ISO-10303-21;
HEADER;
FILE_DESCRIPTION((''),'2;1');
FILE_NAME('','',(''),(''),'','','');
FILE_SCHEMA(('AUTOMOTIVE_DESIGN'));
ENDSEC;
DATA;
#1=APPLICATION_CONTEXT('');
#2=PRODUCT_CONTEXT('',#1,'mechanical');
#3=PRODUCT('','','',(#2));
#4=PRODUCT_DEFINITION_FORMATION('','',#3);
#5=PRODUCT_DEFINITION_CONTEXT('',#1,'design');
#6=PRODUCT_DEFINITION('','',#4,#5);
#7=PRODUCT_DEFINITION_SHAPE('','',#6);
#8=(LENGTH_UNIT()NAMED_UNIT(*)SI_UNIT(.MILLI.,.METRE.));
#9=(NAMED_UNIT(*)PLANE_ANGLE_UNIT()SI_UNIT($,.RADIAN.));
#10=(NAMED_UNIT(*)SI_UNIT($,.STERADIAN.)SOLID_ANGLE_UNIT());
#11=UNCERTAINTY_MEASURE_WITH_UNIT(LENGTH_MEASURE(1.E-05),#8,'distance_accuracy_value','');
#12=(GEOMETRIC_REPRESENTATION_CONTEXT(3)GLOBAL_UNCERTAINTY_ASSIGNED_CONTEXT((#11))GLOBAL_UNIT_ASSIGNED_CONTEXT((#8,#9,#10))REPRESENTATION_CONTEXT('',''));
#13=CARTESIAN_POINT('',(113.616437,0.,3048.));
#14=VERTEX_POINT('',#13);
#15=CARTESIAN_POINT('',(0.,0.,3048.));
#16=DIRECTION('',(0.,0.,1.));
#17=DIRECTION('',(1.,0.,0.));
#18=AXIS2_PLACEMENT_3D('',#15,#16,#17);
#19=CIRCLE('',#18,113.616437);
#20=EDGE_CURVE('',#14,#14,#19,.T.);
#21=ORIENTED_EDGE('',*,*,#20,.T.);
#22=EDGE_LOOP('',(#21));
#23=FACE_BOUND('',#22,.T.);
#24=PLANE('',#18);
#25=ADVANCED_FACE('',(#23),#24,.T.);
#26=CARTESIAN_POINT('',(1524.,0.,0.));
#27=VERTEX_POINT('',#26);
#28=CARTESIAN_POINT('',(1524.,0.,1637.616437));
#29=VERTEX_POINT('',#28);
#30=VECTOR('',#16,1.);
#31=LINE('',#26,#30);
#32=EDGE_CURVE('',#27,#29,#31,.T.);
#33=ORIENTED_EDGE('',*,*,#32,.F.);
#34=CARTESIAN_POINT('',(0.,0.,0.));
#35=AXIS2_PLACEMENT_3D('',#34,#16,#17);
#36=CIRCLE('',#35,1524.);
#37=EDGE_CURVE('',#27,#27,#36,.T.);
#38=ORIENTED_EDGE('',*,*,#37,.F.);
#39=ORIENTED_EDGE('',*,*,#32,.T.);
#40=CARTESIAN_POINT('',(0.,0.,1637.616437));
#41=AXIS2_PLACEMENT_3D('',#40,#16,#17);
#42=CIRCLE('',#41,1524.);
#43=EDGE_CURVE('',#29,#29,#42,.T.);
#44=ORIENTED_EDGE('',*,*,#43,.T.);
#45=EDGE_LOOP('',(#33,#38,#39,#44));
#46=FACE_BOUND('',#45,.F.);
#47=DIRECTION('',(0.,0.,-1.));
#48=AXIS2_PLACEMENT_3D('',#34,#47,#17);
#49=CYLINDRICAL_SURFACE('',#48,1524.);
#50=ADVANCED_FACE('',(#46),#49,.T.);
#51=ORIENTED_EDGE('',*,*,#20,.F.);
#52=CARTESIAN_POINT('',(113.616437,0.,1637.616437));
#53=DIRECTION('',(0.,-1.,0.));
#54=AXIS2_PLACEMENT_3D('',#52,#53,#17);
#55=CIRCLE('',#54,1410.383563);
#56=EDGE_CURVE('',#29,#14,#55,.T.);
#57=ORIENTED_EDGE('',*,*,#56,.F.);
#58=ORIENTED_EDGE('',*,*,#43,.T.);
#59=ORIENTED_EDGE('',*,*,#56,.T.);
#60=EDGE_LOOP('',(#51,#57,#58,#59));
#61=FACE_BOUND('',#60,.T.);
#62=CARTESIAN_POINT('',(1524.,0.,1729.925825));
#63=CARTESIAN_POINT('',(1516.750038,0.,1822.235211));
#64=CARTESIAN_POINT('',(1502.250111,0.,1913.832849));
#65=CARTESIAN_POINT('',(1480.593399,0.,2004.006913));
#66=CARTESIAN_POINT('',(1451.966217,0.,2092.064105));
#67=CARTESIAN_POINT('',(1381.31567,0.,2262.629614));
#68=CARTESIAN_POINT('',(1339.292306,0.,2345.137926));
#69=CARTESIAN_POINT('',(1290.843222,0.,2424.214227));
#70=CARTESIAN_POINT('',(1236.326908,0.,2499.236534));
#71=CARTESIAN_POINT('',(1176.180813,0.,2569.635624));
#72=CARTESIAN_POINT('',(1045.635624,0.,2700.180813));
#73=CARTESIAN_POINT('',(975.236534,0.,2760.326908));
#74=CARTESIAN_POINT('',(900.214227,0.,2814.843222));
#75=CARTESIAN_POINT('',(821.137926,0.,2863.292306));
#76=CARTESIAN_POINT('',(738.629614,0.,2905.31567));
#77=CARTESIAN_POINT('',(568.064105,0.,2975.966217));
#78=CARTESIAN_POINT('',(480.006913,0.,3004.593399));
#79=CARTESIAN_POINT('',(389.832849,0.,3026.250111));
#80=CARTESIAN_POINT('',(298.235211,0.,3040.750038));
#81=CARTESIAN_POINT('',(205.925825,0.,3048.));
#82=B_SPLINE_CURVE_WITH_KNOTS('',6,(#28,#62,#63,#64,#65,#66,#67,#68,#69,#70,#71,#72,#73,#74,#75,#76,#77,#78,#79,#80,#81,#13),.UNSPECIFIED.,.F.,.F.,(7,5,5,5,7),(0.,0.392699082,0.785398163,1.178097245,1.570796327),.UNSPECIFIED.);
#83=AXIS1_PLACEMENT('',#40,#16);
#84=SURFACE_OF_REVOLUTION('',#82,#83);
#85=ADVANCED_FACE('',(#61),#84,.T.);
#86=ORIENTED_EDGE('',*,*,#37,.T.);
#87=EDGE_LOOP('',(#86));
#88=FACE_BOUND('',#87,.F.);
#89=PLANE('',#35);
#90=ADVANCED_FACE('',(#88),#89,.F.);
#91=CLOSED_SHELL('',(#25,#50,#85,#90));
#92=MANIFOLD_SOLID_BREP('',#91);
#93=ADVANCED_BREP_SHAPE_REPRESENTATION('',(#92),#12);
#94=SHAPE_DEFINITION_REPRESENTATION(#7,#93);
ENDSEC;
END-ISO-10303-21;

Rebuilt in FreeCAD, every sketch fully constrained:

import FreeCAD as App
import Part
import Sketcher

V = App.Vector
Q = App.Units.Quantity


def edges_at(feature, points):
    """Names of the edges that pass closest to the given points."""
    edges = feature.Shape.Edges
    near = lambda p: min(range(len(edges)), key=lambda i: edges[i].distToShape(Part.Vertex(*p))[0])
    return sorted({f"Edge{near(p) + 1}" for p in points})

doc = App.newDocument("Part")
body = doc.addObject("PartDesign::Body", "Body")

sketch1 = body.newObject("Sketcher::SketchObject", "Sketch")
sketch1.AttachmentSupport = (doc.getObject("XY_Plane"), [""])
sketch1.MapMode = "FlatFace"
sketch1.addGeometry(Part.Circle(V(0, 0, 0), V(0, 0, 1), 1524), False)
sketch1.addConstraint([
    Sketcher.Constraint("Coincident", 0, 3, -1, 1),
    Sketcher.Constraint("Diameter", 0, Q("120 in")),
])
pad1 = body.newObject("PartDesign::Pad", "Pad")
pad1.Profile = sketch1
pad1.Length = Q("120 in")
doc.recompute()

fillet = body.newObject("PartDesign::Fillet", "Fillet")
fillet.Base = (pad1, edges_at(pad1, [(-1524, 0, 3048)]))
fillet.Radius = 1410.383563

sketch2 = body.newObject("Sketcher::SketchObject", "Sketch001")
sketch2.AttachmentSupport = (doc.getObject("XZ_Plane"), [""])
sketch2.MapMode = "FlatFace"
sketch2.addGeometry([
    Part.LineSegment(V(-1147.043705, 1376.689672, 0), V(-1147.043705, 0, 0)),
    Part.LineSegment(V(-1147.043705, 0, 0), V(1150.690435, 0, 0)),
    Part.LineSegment(V(1150.690435, 0, 0), V(1150.690435, 1376.689672, 0)),
    Part.LineSegment(V(1150.690435, 1376.689672, 0), V(-1147.043705, 1376.689672, 0)),
], False)
sketch2.addConstraint([
    Sketcher.Constraint("Coincident", 0, 2, 1, 1),
    Sketcher.Constraint("Coincident", 1, 2, 2, 1),
    Sketcher.Constraint("Coincident", 2, 2, 3, 1),
    Sketcher.Constraint("Coincident", 3, 2, 0, 1),
    Sketcher.Constraint("Vertical", 0),
    Sketcher.Constraint("Horizontal", 1),
    Sketcher.Constraint("Vertical", 2),
    Sketcher.Constraint("Horizontal", 3),
    Sketcher.Constraint("PointOnObject", 0, 2, -1),
    Sketcher.Constraint("DistanceX", 1, 1, 1, 2, 2297.73414),
    Sketcher.Constraint("DistanceY", 0, 2, 0, 1, 1376.689672),
    Sketcher.Constraint("DistanceX", 0, 2, -1, 1, 1147.043705),
])
pad2 = body.newObject("PartDesign::Pad", "Pad001")
pad2.Profile = sketch2
pad2.Length = Q("1 in")

doc.recompute()
